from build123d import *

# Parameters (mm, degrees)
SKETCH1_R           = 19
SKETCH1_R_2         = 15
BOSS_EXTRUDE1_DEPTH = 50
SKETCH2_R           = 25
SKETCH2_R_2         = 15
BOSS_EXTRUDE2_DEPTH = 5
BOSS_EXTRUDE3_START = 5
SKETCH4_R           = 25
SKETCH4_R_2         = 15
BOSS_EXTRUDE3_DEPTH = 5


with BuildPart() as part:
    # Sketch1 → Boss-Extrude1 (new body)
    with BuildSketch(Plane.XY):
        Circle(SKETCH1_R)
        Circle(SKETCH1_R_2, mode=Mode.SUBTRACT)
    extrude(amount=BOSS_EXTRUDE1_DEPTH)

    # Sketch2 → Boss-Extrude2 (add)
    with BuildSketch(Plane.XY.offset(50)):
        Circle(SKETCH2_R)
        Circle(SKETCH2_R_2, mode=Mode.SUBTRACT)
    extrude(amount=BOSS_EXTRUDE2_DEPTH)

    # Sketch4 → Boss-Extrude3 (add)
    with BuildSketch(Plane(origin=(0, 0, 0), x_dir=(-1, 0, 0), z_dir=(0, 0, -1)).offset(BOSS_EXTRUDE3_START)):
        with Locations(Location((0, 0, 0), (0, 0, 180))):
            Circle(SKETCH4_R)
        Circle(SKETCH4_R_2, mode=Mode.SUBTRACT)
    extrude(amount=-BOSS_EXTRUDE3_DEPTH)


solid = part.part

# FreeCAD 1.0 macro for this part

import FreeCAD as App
import Part
import Sketcher
from FreeCAD import Vector

doc = App.newDocument("Part")
body = doc.addObject("PartDesign::Body", "Body")

# Sketch on XY plane
sketch1 = doc.addObject("Sketcher::SketchObject", "Sketch")
body.addObject(sketch1)
sketch1.AttachmentSupport = (doc.XY_Plane, [""])
sketch1.MapMode = "FlatFace"
sketch1.addGeometry(Part.Circle(Vector(0, 0, 0), Vector(0, 0, 1), 19), False)
sketch1.addGeometry(Part.Circle(Vector(0, 0, 0), Vector(0, 0, 1), 15), False)
sketch1.addConstraint(Sketcher.Constraint("Coincident", 0, 3, -1, 1))
sketch1.addConstraint(Sketcher.Constraint("Coincident", 1, 3, -1, 1))
sketch1.addConstraint(Sketcher.Constraint("Diameter", 0, 38.0))
sketch1.addConstraint(Sketcher.Constraint("Diameter", 1, 30.0))
pad1 = doc.addObject("PartDesign::Pad", "Pad")
body.addObject(pad1)
pad1.Profile = sketch1
pad1.Length = 50

# Sketch on XY plane
sketch2 = doc.addObject("Sketcher::SketchObject", "Sketch001")
body.addObject(sketch2)
sketch2.AttachmentSupport = (doc.XY_Plane, [""])
sketch2.MapMode = "FlatFace"
sketch2.AttachmentOffset = App.Placement(Vector(0, 0, 50), App.Rotation())
sketch2.addGeometry(Part.Circle(Vector(0, 0, 0), Vector(0, 0, 1), 25), False)
sketch2.addGeometry(Part.Circle(Vector(0, 0, 0), Vector(0, 0, 1), 15), False)
sketch2.addConstraint(Sketcher.Constraint("Coincident", 0, 3, -1, 1))
sketch2.addConstraint(Sketcher.Constraint("Coincident", 1, 3, -1, 1))
sketch2.addConstraint(Sketcher.Constraint("Diameter", 0, 50.0))
sketch2.addConstraint(Sketcher.Constraint("Diameter", 1, 30.0))
pad2 = doc.addObject("PartDesign::Pad", "Pad001")
body.addObject(pad2)
pad2.Profile = sketch2
pad2.Length = 5

# Sketch on XY plane
sketch3 = doc.addObject("Sketcher::SketchObject", "Sketch002")
body.addObject(sketch3)
sketch3.AttachmentSupport = (doc.XY_Plane, [""])
sketch3.MapMode = "FlatFace"
sketch3.AttachmentOffset = App.Placement(Vector(0, 0, -5), App.Rotation())
sketch3.addGeometry(Part.Circle(Vector(0, 0, 0), Vector(0, 0, 1), 25), False)
sketch3.addGeometry(Part.Circle(Vector(0, 0, 0), Vector(0, 0, 1), 15), False)
sketch3.addConstraint(Sketcher.Constraint("Coincident", 0, 3, -1, 1))
sketch3.addConstraint(Sketcher.Constraint("Coincident", 1, 3, -1, 1))
sketch3.addConstraint(Sketcher.Constraint("Diameter", 0, 50.0))
sketch3.addConstraint(Sketcher.Constraint("Diameter", 1, 30.0))
pad3 = doc.addObject("PartDesign::Pad", "Pad002")
body.addObject(pad3)
pad3.Profile = sketch3
pad3.Length = 5

doc.recompute()
